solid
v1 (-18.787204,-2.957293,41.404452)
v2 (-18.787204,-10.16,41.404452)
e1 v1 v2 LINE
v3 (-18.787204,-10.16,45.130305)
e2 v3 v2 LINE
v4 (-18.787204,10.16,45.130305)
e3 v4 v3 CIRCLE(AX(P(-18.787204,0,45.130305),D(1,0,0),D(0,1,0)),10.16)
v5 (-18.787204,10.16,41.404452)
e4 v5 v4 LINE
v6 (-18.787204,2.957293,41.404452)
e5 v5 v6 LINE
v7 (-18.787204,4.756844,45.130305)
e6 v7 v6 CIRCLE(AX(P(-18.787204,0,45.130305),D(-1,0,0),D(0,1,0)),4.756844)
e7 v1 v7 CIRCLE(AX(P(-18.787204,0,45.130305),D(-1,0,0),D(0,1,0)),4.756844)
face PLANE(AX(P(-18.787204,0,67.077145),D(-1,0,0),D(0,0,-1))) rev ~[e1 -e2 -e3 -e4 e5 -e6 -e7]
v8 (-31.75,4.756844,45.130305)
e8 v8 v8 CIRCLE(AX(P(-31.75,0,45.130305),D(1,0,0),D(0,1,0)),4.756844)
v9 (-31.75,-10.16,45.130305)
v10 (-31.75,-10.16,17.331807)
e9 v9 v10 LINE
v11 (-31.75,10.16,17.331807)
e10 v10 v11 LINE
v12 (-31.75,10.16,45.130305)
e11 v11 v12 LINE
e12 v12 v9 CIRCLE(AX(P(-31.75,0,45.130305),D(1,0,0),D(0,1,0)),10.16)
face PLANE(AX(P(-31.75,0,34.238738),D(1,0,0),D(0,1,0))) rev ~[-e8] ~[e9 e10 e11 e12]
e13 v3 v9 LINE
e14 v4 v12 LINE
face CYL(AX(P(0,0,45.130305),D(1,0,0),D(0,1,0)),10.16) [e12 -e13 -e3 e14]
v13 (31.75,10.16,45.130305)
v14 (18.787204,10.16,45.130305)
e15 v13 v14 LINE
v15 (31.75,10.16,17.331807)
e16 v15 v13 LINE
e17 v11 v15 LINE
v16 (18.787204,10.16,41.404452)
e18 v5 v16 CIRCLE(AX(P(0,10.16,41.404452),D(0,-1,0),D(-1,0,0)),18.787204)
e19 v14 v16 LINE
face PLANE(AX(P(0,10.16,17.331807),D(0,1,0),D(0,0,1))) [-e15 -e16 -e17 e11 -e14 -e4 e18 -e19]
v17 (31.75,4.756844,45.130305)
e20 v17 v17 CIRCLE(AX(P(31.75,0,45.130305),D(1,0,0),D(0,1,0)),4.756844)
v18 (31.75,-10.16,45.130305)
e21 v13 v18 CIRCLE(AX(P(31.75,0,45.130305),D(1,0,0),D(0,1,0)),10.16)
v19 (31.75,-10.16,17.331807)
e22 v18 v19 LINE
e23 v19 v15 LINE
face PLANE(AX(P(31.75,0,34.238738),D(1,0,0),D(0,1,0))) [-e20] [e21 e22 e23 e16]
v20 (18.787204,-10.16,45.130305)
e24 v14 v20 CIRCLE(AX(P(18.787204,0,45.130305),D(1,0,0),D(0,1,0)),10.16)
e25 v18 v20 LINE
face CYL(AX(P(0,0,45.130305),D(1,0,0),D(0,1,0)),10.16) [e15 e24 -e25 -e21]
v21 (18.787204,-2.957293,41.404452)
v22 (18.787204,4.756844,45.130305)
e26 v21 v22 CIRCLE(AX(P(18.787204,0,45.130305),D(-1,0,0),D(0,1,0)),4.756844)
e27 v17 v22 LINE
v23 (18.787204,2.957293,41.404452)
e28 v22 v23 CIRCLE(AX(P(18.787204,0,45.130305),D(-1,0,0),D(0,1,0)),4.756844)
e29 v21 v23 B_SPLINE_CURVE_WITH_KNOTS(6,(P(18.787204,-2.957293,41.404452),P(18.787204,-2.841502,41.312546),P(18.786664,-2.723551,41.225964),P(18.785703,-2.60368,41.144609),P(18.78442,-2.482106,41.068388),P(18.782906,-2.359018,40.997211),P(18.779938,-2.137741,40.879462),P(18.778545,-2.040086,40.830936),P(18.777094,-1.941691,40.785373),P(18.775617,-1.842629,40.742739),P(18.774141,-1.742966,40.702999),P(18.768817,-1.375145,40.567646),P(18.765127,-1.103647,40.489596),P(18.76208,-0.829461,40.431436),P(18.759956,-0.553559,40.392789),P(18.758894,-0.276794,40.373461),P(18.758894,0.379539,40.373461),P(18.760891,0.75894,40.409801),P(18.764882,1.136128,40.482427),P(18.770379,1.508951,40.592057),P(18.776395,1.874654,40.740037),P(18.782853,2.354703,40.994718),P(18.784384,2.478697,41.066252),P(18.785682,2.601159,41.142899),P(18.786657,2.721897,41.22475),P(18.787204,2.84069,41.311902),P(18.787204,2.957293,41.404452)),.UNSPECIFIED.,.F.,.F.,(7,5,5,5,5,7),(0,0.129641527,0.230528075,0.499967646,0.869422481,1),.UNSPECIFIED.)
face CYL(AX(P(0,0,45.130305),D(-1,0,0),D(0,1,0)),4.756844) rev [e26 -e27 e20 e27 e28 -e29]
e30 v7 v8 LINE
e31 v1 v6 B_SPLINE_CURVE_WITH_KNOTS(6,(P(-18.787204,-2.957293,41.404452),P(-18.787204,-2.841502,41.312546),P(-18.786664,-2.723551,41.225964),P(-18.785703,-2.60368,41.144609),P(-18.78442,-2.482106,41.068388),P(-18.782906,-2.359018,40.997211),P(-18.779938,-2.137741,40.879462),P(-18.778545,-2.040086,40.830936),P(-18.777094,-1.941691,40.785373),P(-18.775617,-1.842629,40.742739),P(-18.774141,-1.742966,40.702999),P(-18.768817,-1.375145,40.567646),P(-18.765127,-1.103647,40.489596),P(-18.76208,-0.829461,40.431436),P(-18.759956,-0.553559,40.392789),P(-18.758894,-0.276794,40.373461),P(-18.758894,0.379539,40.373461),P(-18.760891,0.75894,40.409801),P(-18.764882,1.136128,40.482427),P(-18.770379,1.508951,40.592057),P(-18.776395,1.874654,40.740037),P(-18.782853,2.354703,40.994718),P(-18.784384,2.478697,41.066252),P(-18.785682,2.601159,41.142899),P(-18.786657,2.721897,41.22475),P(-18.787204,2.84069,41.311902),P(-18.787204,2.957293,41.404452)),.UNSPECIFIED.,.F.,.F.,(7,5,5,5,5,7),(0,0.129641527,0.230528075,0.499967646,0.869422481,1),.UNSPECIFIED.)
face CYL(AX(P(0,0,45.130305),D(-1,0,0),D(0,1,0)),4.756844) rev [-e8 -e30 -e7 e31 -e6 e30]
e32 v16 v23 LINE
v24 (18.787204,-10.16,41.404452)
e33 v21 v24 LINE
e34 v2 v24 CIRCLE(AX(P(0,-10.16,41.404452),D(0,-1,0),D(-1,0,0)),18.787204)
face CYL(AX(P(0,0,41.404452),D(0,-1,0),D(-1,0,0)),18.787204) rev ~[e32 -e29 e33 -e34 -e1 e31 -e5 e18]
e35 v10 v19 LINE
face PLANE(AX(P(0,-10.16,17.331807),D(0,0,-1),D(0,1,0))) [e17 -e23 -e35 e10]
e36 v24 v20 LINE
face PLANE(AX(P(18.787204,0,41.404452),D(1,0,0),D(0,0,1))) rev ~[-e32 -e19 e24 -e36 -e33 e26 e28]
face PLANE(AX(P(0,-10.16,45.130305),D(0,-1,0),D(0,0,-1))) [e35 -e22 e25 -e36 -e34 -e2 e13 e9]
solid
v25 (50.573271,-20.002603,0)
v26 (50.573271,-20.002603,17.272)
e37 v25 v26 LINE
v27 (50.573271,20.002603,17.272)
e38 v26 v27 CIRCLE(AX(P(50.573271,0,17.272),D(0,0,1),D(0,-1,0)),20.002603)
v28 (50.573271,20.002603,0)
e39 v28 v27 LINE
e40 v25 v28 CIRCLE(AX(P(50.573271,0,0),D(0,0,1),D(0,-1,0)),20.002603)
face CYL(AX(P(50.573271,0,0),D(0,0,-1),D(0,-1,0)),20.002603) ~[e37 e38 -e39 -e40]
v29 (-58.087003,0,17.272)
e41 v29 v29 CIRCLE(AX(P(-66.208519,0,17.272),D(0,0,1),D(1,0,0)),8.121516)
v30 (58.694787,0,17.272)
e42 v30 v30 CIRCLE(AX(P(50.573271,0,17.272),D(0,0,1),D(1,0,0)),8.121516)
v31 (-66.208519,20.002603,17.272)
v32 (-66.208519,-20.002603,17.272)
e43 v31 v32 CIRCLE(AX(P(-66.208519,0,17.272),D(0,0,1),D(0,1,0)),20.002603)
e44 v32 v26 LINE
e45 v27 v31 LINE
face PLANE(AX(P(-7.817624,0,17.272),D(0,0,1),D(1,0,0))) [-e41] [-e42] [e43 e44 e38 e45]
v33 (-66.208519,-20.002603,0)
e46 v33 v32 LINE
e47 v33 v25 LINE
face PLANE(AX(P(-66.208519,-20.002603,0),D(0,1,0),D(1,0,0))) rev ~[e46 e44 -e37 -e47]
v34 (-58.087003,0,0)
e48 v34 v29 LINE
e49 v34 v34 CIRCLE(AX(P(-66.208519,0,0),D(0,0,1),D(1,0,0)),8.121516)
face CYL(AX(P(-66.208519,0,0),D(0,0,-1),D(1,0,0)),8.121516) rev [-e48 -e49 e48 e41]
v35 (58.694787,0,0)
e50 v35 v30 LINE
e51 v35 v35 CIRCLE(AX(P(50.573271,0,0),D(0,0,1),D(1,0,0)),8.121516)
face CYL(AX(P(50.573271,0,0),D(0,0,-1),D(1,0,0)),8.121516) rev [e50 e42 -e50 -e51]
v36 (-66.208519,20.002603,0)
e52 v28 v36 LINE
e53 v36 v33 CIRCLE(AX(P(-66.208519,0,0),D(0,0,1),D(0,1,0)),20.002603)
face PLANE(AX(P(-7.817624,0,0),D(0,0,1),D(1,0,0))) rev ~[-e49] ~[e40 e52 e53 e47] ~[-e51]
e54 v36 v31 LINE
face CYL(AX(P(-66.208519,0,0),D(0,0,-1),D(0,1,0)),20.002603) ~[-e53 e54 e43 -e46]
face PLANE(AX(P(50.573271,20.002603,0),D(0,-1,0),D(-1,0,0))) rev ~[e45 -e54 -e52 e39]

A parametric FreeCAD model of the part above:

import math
import FreeCAD as App
import Part
import Sketcher
Q = App.Units.Quantity

doc = App.newDocument("Part")
params = doc.addObject("Spreadsheet::Sheet", "Params")
for row, (alias, value) in enumerate([
    ("pad1_length", "0.68 in"),
    ("sketch2_radius", "0.4 in"),
    ("pad2_length", "2.5 in"),
    ("pocket1_length", "1 in"),
], start=1):
    params.set(f"A{row}", alias)
    params.set(f"B{row}", "=" + value)
    params.setAlias(f"B{row}", alias)

body = doc.addObject("PartDesign::Body", "Body")

sketch1 = body.newObject("Sketcher::SketchObject", "Sketch")
sketch1.AttachmentSupport = (doc.getObject("XY_Plane"), [""])
sketch1.MapMode = "FlatFace"
sketch1.addGeometry(Part.LineSegment(App.Vector(50.573271, 20.002603, 0), App.Vector(-66.208519, 20.002603, 0)), False)
sketch1.addGeometry(Part.ArcOfCircle(Part.Circle(App.Vector(-66.208519, 0, 0), App.Vector(0, 0, 1), 20.002603), math.radians(90), math.radians(270)), False)
sketch1.addGeometry(Part.LineSegment(App.Vector(-66.208519, -20.002603, 0), App.Vector(50.573271, -20.002603, 0)), False)
sketch1.addGeometry(Part.ArcOfCircle(Part.Circle(App.Vector(50.573271, 0, 0), App.Vector(0, 0, 1), 20.002603), math.radians(-90), math.radians(90)), False)
sketch1.addGeometry(Part.Circle(App.Vector(-66.208519, 0, 0), App.Vector(0, 0, 1), 8.121516), False)
sketch1.addGeometry(Part.Circle(App.Vector(50.573271, 0, 0), App.Vector(0, 0, 1), 8.121516), False)
sketch1.addConstraint(Sketcher.Constraint("Tangent", 0, 2, 1, 1))
sketch1.addConstraint(Sketcher.Constraint("Tangent", 1, 2, 2, 1))
sketch1.addConstraint(Sketcher.Constraint("Tangent", 2, 2, 3, 1))
sketch1.addConstraint(Sketcher.Constraint("Tangent", 3, 2, 0, 1))
sketch1.addConstraint(Sketcher.Constraint("Horizontal", 0))
sketch1.addConstraint(Sketcher.Constraint("Horizontal", 2))
sketch1.addConstraint(Sketcher.Constraint("Coincident", 4, 3, 1, 3))
sketch1.addConstraint(Sketcher.Constraint("Coincident", 5, 3, 3, 3))
sketch1.addConstraint(Sketcher.Constraint("Equal", 4, 5))
sketch1.addConstraint(Sketcher.Constraint("PointOnObject", 1, 3, -1))
sketch1.addConstraint(Sketcher.Constraint("Diameter", 4, Q("16.243032 mm")))
sketch1.addConstraint(Sketcher.Constraint("Radius", 1, Q("20.002603 mm")))
sketch1.addConstraint(Sketcher.Constraint("DistanceX", 0, 2, 0, 1, Q("116.78179 mm")))
sketch1.addConstraint(Sketcher.Constraint("DistanceX", 1, 3, -1, 1, Q("66.208519 mm")))
pad1 = body.newObject("PartDesign::Pad", "Pad")
pad1.Profile = sketch1
pad1.setExpression("Length", "Params.pad1_length")
body2 = doc.addObject("PartDesign::Body", "Body001")

sketch2 = body2.newObject("Sketcher::SketchObject", "Sketch001")
sketch2.AttachmentSupport = (doc.getObject("YZ_Plane001"), [""])
sketch2.MapMode = "FlatFace"
sketch2.addGeometry(Part.LineSegment(App.Vector(-10.16, 45.130305, 0), App.Vector(-10.16, 17.331807, 0)), False)
sketch2.addGeometry(Part.LineSegment(App.Vector(-10.16, 17.331807, 0), App.Vector(10.16, 17.331807, 0)), False)
sketch2.addGeometry(Part.LineSegment(App.Vector(10.16, 17.331807, 0), App.Vector(10.16, 45.130305, 0)), False)
sketch2.addGeometry(Part.ArcOfCircle(Part.Circle(App.Vector(0, 45.130305, 0), App.Vector(0, 0, 1), 10.16), math.radians(0), math.radians(180)), False)
sketch2.addGeometry(Part.Circle(App.Vector(0, 45.130305, 0), App.Vector(0, 0, 1), 4.756844), False)
sketch2.addConstraint(Sketcher.Constraint("Coincident", 0, 2, 1, 1))
sketch2.addConstraint(Sketcher.Constraint("Coincident", 1, 2, 2, 1))
sketch2.addConstraint(Sketcher.Constraint("Tangent", 2, 2, 3, 1))
sketch2.addConstraint(Sketcher.Constraint("Tangent", 3, 2, 0, 1))
sketch2.addConstraint(Sketcher.Constraint("Vertical", 0))
sketch2.addConstraint(Sketcher.Constraint("Horizontal", 1))
sketch2.addConstraint(Sketcher.Constraint("Vertical", 2))
sketch2.addConstraint(Sketcher.Constraint("Coincident", 4, 3, 3, 3))
sketch2.addConstraint(Sketcher.Constraint("PointOnObject", 3, 3, -2))
sketch2.addConstraint(Sketcher.Constraint("Radius", 3, Q("0.4 in")))
sketch2.addConstraint(Sketcher.Constraint("Diameter", 4, Q("9.513688 mm")))
sketch2.addConstraint(Sketcher.Constraint("DistanceY", 0, 2, 0, 1, Q("27.798498 mm")))
sketch2.addConstraint(Sketcher.Constraint("DistanceY", -1, 1, 3, 3, Q("45.130305 mm")))
sketch2.setExpression("Constraints[9]", "Params.sketch2_radius")
pad2 = body2.newObject("PartDesign::Pad", "Pad001")
pad2.Profile = sketch2
pad2.setExpression("Length", "Params.pad2_length")
pad2.Midplane = True

sketch3 = body2.newObject("Sketcher::SketchObject", "Sketch002")
sketch3.AttachmentSupport = (doc.getObject("XZ_Plane001"), [""])
sketch3.MapMode = "FlatFace"
sketch3.addGeometry(Part.LineSegment(App.Vector(-18.787204, 67.077145, 0), App.Vector(-18.787204, 41.404452, 0)), False)
sketch3.addGeometry(Part.ArcOfCircle(Part.Circle(App.Vector(0, 41.404452, 0), App.Vector(0, 0, 1), 18.787204), math.radians(180), math.radians(360)), False)
sketch3.addGeometry(Part.LineSegment(App.Vector(18.787204, 41.404452, 0), App.Vector(18.787204, 67.270167, 0)), False)
sketch3.addGeometry(Part.LineSegment(App.Vector(18.787204, 67.270167, 0), App.Vector(-18.787204, 67.077145, 0)), False)
sketch3.addConstraint(Sketcher.Constraint("Tangent", 0, 2, 1, 1))
sketch3.addConstraint(Sketcher.Constraint("Tangent", 1, 2, 2, 1))
sketch3.addConstraint(Sketcher.Constraint("Coincident", 2, 2, 3, 1))
sketch3.addConstraint(Sketcher.Constraint("Coincident", 3, 2, 0, 1))
sketch3.addConstraint(Sketcher.Constraint("Vertical", 0))
sketch3.addConstraint(Sketcher.Constraint("Vertical", 2))
sketch3.addConstraint(Sketcher.Constraint("PointOnObject", 1, 3, -2))
sketch3.addConstraint(Sketcher.Constraint("Radius", 1, Q("18.787204 mm")))
sketch3.addConstraint(Sketcher.Constraint("DistanceY", 0, 2, 0, 1, Q("25.672693 mm")))
sketch3.addConstraint(Sketcher.Constraint("DistanceY", 2, 1, 2, 2, Q("25.865715 mm")))
sketch3.addConstraint(Sketcher.Constraint("DistanceY", -1, 1, 1, 3, Q("41.404452 mm")))
pocket1 = body2.newObject("PartDesign::Pocket", "Pocket")
pocket1.Profile = sketch3
pocket1.setExpression("Length", "Params.pocket1_length")
pocket1.Midplane = True

doc.recompute()
